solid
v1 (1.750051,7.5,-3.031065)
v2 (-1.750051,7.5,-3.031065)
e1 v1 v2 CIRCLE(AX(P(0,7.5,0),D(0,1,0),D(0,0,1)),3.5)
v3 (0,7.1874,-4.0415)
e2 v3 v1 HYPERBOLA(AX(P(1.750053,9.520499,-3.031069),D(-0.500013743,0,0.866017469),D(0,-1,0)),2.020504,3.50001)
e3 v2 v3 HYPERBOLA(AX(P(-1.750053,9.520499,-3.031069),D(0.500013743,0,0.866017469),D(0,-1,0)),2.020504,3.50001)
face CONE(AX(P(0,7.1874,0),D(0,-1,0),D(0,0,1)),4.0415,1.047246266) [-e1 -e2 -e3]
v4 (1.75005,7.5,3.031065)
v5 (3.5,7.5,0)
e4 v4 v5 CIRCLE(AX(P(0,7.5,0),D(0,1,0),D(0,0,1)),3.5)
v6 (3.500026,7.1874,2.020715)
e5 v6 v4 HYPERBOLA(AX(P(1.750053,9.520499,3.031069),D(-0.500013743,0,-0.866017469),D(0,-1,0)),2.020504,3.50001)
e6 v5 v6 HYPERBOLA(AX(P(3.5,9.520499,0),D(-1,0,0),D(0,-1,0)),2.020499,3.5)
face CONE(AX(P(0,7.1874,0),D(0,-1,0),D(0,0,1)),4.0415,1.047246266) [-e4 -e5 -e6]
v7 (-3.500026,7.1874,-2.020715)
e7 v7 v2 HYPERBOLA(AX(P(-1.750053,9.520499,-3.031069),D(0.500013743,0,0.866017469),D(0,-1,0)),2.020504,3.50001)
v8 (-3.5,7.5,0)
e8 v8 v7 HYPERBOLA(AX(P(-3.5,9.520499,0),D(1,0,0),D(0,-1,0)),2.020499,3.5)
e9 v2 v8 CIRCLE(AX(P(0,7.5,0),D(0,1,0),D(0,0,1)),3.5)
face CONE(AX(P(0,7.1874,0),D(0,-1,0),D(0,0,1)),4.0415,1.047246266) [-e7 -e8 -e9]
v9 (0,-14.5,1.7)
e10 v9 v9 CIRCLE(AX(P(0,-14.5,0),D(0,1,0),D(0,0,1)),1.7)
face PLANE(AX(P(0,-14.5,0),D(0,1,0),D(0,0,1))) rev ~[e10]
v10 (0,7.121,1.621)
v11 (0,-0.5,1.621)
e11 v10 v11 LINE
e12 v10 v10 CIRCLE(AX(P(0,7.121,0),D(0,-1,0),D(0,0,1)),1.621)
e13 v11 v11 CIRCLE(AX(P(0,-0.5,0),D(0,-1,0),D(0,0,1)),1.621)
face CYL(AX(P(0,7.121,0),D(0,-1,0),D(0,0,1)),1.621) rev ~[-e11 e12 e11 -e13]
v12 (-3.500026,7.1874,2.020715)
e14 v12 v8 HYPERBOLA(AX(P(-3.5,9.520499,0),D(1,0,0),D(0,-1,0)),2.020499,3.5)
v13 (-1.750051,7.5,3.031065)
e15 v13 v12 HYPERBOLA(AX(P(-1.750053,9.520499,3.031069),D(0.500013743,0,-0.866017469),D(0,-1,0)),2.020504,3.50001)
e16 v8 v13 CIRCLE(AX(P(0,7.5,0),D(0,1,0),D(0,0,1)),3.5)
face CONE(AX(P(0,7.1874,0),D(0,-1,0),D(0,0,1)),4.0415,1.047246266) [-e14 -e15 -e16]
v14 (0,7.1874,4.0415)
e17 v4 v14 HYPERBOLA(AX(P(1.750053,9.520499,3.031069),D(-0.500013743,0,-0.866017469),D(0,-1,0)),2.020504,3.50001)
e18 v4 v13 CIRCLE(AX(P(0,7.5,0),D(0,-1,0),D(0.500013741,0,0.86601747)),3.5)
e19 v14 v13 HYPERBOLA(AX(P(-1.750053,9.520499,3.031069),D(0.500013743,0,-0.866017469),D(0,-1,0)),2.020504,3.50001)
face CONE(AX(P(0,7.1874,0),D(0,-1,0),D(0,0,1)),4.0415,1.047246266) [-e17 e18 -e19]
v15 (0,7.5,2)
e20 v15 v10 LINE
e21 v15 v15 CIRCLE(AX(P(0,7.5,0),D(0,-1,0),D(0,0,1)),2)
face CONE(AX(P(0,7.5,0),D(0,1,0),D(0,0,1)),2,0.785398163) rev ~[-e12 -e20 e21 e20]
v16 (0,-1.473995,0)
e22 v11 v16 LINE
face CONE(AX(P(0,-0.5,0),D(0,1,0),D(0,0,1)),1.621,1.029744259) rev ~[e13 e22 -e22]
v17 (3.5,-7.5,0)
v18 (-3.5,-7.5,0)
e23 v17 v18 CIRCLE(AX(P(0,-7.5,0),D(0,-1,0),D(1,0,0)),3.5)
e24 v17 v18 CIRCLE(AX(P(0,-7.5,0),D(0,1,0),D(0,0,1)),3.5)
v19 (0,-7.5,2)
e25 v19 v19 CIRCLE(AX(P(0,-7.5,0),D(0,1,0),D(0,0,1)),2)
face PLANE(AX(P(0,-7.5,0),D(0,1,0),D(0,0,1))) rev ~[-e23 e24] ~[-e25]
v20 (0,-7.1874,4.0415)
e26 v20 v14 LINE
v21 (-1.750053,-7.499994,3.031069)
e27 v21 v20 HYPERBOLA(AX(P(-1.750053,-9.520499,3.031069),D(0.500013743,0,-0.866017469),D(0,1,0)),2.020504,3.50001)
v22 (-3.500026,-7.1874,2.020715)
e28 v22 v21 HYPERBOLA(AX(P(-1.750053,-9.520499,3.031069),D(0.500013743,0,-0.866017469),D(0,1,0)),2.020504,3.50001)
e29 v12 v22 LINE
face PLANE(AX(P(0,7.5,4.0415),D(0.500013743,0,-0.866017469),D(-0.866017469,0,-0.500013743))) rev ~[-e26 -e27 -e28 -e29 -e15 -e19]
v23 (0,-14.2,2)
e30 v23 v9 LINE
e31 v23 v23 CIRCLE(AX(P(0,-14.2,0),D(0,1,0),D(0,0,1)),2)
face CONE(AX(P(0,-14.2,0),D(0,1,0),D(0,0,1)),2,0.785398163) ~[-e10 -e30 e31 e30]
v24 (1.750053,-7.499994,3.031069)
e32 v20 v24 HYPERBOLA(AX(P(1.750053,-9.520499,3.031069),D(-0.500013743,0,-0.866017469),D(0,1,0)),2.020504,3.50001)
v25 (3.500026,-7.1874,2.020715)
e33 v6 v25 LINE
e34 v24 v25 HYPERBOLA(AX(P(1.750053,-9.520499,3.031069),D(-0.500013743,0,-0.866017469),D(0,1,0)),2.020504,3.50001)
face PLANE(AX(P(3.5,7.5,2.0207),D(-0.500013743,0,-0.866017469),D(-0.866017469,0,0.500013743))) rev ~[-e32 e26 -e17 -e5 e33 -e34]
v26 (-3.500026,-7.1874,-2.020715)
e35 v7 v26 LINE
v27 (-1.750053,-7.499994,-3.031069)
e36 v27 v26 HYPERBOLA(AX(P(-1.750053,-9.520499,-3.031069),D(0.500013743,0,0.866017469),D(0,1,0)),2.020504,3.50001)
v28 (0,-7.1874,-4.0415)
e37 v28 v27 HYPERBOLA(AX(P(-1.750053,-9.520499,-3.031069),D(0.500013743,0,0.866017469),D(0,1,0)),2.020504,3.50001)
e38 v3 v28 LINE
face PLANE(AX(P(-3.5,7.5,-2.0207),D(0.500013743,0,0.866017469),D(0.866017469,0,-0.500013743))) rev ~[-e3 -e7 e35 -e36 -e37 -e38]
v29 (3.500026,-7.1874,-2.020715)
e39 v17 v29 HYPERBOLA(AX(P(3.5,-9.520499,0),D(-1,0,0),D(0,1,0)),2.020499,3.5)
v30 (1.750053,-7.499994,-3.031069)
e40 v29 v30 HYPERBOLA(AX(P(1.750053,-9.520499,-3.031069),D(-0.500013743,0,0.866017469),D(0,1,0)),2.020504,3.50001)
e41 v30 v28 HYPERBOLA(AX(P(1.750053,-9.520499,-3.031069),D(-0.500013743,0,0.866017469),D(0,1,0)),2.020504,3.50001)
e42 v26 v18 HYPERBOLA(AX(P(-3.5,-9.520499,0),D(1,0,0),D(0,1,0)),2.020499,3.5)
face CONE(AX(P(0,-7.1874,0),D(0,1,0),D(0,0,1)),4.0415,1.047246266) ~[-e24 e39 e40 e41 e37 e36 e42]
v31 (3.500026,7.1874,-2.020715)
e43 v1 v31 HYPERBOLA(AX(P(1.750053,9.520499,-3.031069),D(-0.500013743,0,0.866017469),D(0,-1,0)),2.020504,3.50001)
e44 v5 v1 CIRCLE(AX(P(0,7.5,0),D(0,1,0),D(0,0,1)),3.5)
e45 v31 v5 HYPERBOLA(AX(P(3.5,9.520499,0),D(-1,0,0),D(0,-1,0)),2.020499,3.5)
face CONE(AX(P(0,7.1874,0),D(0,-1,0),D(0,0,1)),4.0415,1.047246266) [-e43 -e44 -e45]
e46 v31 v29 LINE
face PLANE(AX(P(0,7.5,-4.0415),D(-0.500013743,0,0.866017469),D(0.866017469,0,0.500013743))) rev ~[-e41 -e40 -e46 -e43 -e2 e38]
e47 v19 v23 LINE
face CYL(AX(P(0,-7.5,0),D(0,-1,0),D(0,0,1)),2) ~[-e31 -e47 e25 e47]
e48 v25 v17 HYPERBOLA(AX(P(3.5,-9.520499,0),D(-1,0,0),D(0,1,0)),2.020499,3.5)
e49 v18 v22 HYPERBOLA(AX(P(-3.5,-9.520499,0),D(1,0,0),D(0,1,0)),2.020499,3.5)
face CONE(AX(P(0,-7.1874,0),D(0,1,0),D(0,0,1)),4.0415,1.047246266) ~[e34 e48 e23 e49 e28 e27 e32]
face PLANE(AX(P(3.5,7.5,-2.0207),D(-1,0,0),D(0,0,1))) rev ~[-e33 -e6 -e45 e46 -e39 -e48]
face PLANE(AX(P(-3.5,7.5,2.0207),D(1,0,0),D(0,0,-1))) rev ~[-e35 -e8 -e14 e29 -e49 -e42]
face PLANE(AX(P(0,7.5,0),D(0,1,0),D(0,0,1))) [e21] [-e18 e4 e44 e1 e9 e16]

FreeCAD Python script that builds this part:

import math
import FreeCAD as App
import Part
import Sketcher

V = App.Vector
Q = App.Units.Quantity

doc = App.newDocument("Part")
body = doc.addObject("PartDesign::Body", "Body")

# Sketch on YZ plane
sketch1 = doc.addObject("Sketcher::SketchObject", "Sketch")
body.addObject(sketch1)
sketch1.AttachmentSupport = (doc.YZ_Plane, [""])
sketch1.MapMode = "FlatFace"
sketch1.addGeometry(Part.LineSegment(V(-7.5, 3.5, 0), V(-7.5, 2, 0)), False)
sketch1.addGeometry(Part.LineSegment(V(-7.5, 2, 0), V(-14.2, 2, 0)), False)
sketch1.addGeometry(Part.LineSegment(V(-14.2, 2, 0), V(-14.5, 1.7, 0)), False)
sketch1.addGeometry(Part.LineSegment(V(-14.5, 1.7, 0), V(-14.5, 0, 0)), False)
sketch1.addGeometry(Part.LineSegment(V(-14.5, 0, 0), V(7.5, 0, 0)), False)
sketch1.addGeometry(Part.LineSegment(V(7.5, 0, 0), V(7.5, 3.5, 0)), False)
sketch1.addGeometry(Part.LineSegment(V(7.5, 3.5, 0), V(7.1874, 4.0415, 0)), False)
sketch1.addGeometry(Part.LineSegment(V(7.1874, 4.0415, 0), V(-7.1874, 4.0415, 0)), False)
sketch1.addGeometry(Part.LineSegment(V(-7.1874, 4.0415, 0), V(-7.5, 3.5, 0)), False)
sketch1.addConstraint(Sketcher.Constraint("Coincident", 0, 2, 1, 1))
sketch1.addConstraint(Sketcher.Constraint("Coincident", 1, 2, 2, 1))
sketch1.addConstraint(Sketcher.Constraint("Coincident", 2, 2, 3, 1))
sketch1.addConstraint(Sketcher.Constraint("Coincident", 3, 2, 4, 1))
sketch1.addConstraint(Sketcher.Constraint("Coincident", 4, 2, 5, 1))
sketch1.addConstraint(Sketcher.Constraint("Coincident", 5, 2, 6, 1))
sketch1.addConstraint(Sketcher.Constraint("Coincident", 6, 2, 7, 1))
sketch1.addConstraint(Sketcher.Constraint("Coincident", 7, 2, 8, 1))
sketch1.addConstraint(Sketcher.Constraint("Coincident", 8, 2, 0, 1))
sketch1.addConstraint(Sketcher.Constraint("Vertical", 0))
sketch1.addConstraint(Sketcher.Constraint("Horizontal", 1))
sketch1.addConstraint(Sketcher.Constraint("Vertical", 3))
sketch1.addConstraint(Sketcher.Constraint("Horizontal", 4))
sketch1.addConstraint(Sketcher.Constraint("Vertical", 5))
sketch1.addConstraint(Sketcher.Constraint("Horizontal", 7))
sketch1.addConstraint(Sketcher.Constraint("Symmetric", 5, 2, 8, 2, -2))
sketch1.addConstraint(Sketcher.Constraint("PointOnObject", 3, 2, -1))
sketch1.addConstraint(Sketcher.Constraint("Equal", 6, 8))
sketch1.addConstraint(Sketcher.Constraint("DistanceY", 5, 1, 5, 2, Q("3.5 mm")))
sketch1.addConstraint(Sketcher.Constraint("DistanceX", 2, 2, 0, 2, Q("7 mm")))
sketch1.addConstraint(Sketcher.Constraint("DistanceX", 0, 2, 4, 2, Q("15 mm")))
sketch1.addConstraint(Sketcher.Constraint("DistanceX", 2, 2, 1, 2, Q("0.3 mm")))
sketch1.addConstraint(Sketcher.Constraint("DistanceY", 2, 2, 1, 2, Q("0.3 mm")))
sketch1.addConstraint(Sketcher.Constraint("DistanceY", 0, 2, 0, 1, Q("1.5 mm")))
sketch1.addConstraint(Sketcher.Constraint("DistanceY", -1, 1, 6, 2, Q("4.0415 mm")))
sketch1.addConstraint(Sketcher.Constraint("DistanceX", 7, 2, 7, 1, Q("14.3748 mm")))
revolution = doc.addObject("PartDesign::Revolution", "Revolution")
body.addObject(revolution)
revolution.Profile = sketch1
revolution.ReferenceAxis = (sketch1, ["H_Axis"])
revolution.Angle = 360

# Sketch on XZ plane
sketch2 = doc.addObject("Sketcher::SketchObject", "Sketch001")
body.addObject(sketch2)
sketch2.AttachmentSupport = (doc.XZ_Plane, [""])
sketch2.MapMode = "FlatFace"
sketch2.AttachmentOffset = App.Placement(V(0, 0, -7.5), App.Rotation())
sketch2.addGeometry(Part.ArcOfCircle(Part.Circle(V(0, 0, 0), V(0, 0, 1), 4.0415), math.radians(90), math.radians(150.000319)), False)
sketch2.addGeometry(Part.LineSegment(V(0, 4.0415, 0), V(-3.5, 2.0207, 0)), False)
sketch2.addGeometry(Part.LineSegment(V(3.5, 2.0207, 0), V(0, 4.0415, 0)), False)
sketch2.addGeometry(Part.ArcOfCircle(Part.Circle(V(0, 0, 0), V(0, 0, 1), 4.0415), math.radians(29.999681), math.radians(90)), False)
sketch2.addGeometry(Part.ArcOfCircle(Part.Circle(V(0, 0, 0), V(0, 0, 1), 4.0415), math.radians(150.000319), math.radians(209.999681)), False)
sketch2.addGeometry(Part.LineSegment(V(-3.5, -2.0207, 0), V(-3.5, 2.0207, 0)), False)
sketch2.addGeometry(Part.LineSegment(V(3.5, -2.0207, 0), V(3.5, 2.0207, 0)), False)
sketch2.addGeometry(Part.ArcOfCircle(Part.Circle(V(0, 0, 0), V(0, 0, 1), 4.0415), math.radians(-29.999681), math.radians(29.999681)), False)
sketch2.addGeometry(Part.ArcOfCircle(Part.Circle(V(0, 0, 0), V(0, 0, 1), 4.0415), math.radians(-150.000319), math.radians(-90)), False)
sketch2.addGeometry(Part.LineSegment(V(0, -4.0415, 0), V(-3.5, -2.0207, 0)), False)
sketch2.addGeometry(Part.LineSegment(V(0, -4.0415, 0), V(3.5, -2.0207, 0)), False)
sketch2.addGeometry(Part.ArcOfCircle(Part.Circle(V(0, 0, 0), V(0, 0, 1), 4.0415), math.radians(-90), math.radians(-29.999681)), False)
sketch2.addConstraint(Sketcher.Constraint("Coincident", 0, 1, 1, 1))
sketch2.addConstraint(Sketcher.Constraint("Coincident", 1, 2, 0, 2))
sketch2.addConstraint(Sketcher.Constraint("Coincident", 2, 1, 3, 1))
sketch2.addConstraint(Sketcher.Constraint("Coincident", 3, 2, 2, 2))
sketch2.addConstraint(Sketcher.Constraint("Coincident", 4, 1, 5, 2))
sketch2.addConstraint(Sketcher.Constraint("Coincident", 5, 1, 4, 2))
sketch2.addConstraint(Sketcher.Constraint("Coincident", 6, 1, 7, 1))
sketch2.addConstraint(Sketcher.Constraint("Coincident", 7, 2, 6, 2))
sketch2.addConstraint(Sketcher.Constraint("Coincident", 8, 1, 9, 2))
sketch2.addConstraint(Sketcher.Constraint("Coincident", 9, 1, 8, 2))
sketch2.addConstraint(Sketcher.Constraint("Coincident", 10, 1, 11, 1))
sketch2.addConstraint(Sketcher.Constraint("Coincident", 11, 2, 10, 2))
sketch2.addConstraint(Sketcher.Constraint("Vertical", 5))
sketch2.addConstraint(Sketcher.Constraint("Vertical", 6))
sketch2.addConstraint(Sketcher.Constraint("Coincident", 0, 3, -1, 1))
sketch2.addConstraint(Sketcher.Constraint("Coincident", 3, 3, -1, 1))
sketch2.addConstraint(Sketcher.Constraint("Coincident", 4, 3, -1, 1))
sketch2.addConstraint(Sketcher.Constraint("Coincident", 7, 3, -1, 1))
sketch2.addConstraint(Sketcher.Constraint("Coincident", 8, 3, -1, 1))
sketch2.addConstraint(Sketcher.Constraint("Coincident", 11, 3, -1, 1))
sketch2.addConstraint(Sketcher.Constraint("Coincident", 3, 2, 0, 1))
sketch2.addConstraint(Sketcher.Constraint("Coincident", 4, 1, 1, 2))
sketch2.addConstraint(Sketcher.Constraint("Coincident", 7, 2, 2, 1))
sketch2.addConstraint(Sketcher.Constraint("Coincident", 8, 1, 5, 1))
sketch2.addConstraint(Sketcher.Constraint("Coincident", 10, 1, 9, 1))
sketch2.addConstraint(Sketcher.Constraint("PointOnObject", 0, 1, -2))
sketch2.addConstraint(Sketcher.Constraint("PointOnObject", 9, 1, -2))
sketch2.addConstraint(Sketcher.Constraint("Parallel", 2, 9))
sketch2.addConstraint(Sketcher.Constraint("Parallel", 1, 10))
sketch2.addConstraint(Sketcher.Constraint("Angle", 1, Q("-149.999 deg")))
sketch2.addConstraint(Sketcher.Constraint("DistanceX", 1, 2, -1, 1, Q("3.5 mm")))
pocket1 = doc.addObject("PartDesign::Pocket", "Pocket")
body.addObject(pocket1)
pocket1.Profile = sketch2
pocket1.Type = "ThroughAll"
pocket1.Reversed = True

# Sketch on XZ plane
sketch3 = doc.addObject("Sketcher::SketchObject", "Sketch002")
body.addObject(sketch3)
sketch3.AttachmentSupport = (doc.XZ_Plane, [""])
sketch3.MapMode = "FlatFace"
sketch3.AttachmentOffset = App.Placement(V(0, 0, -7.5), App.Rotation())
sketch3.addGeometry(Part.Circle(V(0, 0, 0), V(0, 0, 1), 1.621), False)
sketch3.addConstraint(Sketcher.Constraint("Coincident", 0, 3, -1, 1))
sketch3.addConstraint(Sketcher.Constraint("Diameter", 0, Q("3.242 mm")))
doc.recompute()
hole = doc.addObject("PartDesign::Hole", "Hole")
body.addObject(hole)
hole.Profile = sketch3
hole.ThreadType = "None"
hole.Diameter = 3.242
hole.DepthType = "Dimension"
hole.Depth = 8
hole.DrillPoint = "Angled"
hole.DrillPointAngle = 118
hole.HoleCutType = "Countersink"
hole.HoleCutDiameter = 4
hole.HoleCutCountersinkAngle = 90
hole.Reversed = True

doc.recompute()
